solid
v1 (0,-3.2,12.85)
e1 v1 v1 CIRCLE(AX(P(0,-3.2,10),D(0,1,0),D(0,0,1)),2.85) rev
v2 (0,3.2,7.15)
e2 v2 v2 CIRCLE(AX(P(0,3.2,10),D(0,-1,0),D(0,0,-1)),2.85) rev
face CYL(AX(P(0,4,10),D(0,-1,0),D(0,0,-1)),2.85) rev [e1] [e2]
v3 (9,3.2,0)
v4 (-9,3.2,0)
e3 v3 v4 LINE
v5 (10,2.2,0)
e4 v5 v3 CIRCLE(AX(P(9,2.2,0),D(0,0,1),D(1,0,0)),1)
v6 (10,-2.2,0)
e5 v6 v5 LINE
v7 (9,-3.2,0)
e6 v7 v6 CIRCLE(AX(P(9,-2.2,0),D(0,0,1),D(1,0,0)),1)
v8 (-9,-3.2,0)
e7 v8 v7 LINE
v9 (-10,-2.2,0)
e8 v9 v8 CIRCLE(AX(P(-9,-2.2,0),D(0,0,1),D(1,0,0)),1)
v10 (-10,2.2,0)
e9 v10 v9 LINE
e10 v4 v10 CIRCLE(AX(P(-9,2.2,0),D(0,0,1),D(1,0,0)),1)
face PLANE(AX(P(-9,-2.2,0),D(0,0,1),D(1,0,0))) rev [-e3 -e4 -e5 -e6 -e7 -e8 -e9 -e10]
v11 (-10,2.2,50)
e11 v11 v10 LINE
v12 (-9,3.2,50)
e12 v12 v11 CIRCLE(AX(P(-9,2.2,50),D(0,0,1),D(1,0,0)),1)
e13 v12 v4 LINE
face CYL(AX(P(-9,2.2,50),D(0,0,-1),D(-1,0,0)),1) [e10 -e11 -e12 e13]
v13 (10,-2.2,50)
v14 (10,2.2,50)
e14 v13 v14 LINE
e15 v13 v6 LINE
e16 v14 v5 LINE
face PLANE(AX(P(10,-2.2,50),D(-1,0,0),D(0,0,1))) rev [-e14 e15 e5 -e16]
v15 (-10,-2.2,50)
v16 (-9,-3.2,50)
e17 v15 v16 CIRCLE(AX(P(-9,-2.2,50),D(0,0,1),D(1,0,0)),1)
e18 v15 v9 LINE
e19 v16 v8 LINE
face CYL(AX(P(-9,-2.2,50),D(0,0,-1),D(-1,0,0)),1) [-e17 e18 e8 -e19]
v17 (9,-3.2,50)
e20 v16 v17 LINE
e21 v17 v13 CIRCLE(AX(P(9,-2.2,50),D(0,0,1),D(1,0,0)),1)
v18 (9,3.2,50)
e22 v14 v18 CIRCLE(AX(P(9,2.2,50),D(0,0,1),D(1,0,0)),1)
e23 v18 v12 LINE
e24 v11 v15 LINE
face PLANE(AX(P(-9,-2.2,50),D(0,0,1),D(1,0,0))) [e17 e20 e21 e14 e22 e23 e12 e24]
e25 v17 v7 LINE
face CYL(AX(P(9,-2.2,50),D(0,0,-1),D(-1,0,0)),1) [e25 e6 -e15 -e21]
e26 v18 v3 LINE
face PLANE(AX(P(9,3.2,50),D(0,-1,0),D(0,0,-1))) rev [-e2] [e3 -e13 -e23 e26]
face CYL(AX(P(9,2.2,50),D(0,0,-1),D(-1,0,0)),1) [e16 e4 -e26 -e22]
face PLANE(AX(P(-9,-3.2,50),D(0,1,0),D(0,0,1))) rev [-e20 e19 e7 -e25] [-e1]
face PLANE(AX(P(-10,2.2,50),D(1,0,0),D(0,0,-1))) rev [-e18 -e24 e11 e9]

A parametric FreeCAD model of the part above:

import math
import FreeCAD as App
import Part
import Sketcher

V = App.Vector

doc = App.newDocument("Part")
body = doc.addObject("PartDesign::Body", "Body")

# Sketch on XY plane
sketch1 = body.newObject("Sketcher::SketchObject", "Sketch")
sketch1.AttachmentSupport = (doc.getObject("XY_Plane"), [""])
sketch1.MapMode = "FlatFace"
sketch1.addGeometry(Part.LineSegment(V(-9, -3.2, 0), V(9, -3.2, 0)), False)
sketch1.addGeometry(Part.ArcOfCircle(Part.Circle(V(9, -2.2, 0), V(0, 0, 1), 1), math.radians(-90), math.radians(0)), False)
sketch1.addGeometry(Part.LineSegment(V(10, -2.2, 0), V(10, 2.2, 0)), False)
sketch1.addGeometry(Part.ArcOfCircle(Part.Circle(V(9, 2.2, 0), V(0, 0, 1), 1), math.radians(0), math.radians(90)), False)
sketch1.addGeometry(Part.LineSegment(V(9, 3.2, 0), V(-9, 3.2, 0)), False)
sketch1.addGeometry(Part.ArcOfCircle(Part.Circle(V(-9, 2.2, 0), V(0, 0, 1), 1), math.radians(90), math.radians(180)), False)
sketch1.addGeometry(Part.LineSegment(V(-10, 2.2, 0), V(-10, -2.2, 0)), False)
sketch1.addGeometry(Part.ArcOfCircle(Part.Circle(V(-9, -2.2, 0), V(0, 0, 1), 1), math.radians(-180), math.radians(-90)), False)
sketch1.addConstraint(Sketcher.Constraint("Tangent", 0, 2, 1, 1))
sketch1.addConstraint(Sketcher.Constraint("Tangent", 1, 2, 2, 1))
sketch1.addConstraint(Sketcher.Constraint("Tangent", 2, 2, 3, 1))
sketch1.addConstraint(Sketcher.Constraint("Tangent", 3, 2, 4, 1))
sketch1.addConstraint(Sketcher.Constraint("Tangent", 4, 2, 5, 1))
sketch1.addConstraint(Sketcher.Constraint("Tangent", 5, 2, 6, 1))
sketch1.addConstraint(Sketcher.Constraint("Tangent", 6, 2, 7, 1))
sketch1.addConstraint(Sketcher.Constraint("Tangent", 7, 2, 0, 1))
sketch1.addConstraint(Sketcher.Constraint("Horizontal", 0))
sketch1.addConstraint(Sketcher.Constraint("Vertical", 2))
sketch1.addConstraint(Sketcher.Constraint("Horizontal", 4))
sketch1.addConstraint(Sketcher.Constraint("Vertical", 6))
sketch1.addConstraint(Sketcher.Constraint("Equal", 1, 3))
sketch1.addConstraint(Sketcher.Constraint("Equal", 3, 5))
sketch1.addConstraint(Sketcher.Constraint("Equal", 5, 7))
sketch1.addConstraint(Sketcher.Constraint("Symmetric", 1, 3, 5, 3, -1, 1))
sketch1.addConstraint(Sketcher.Constraint("Radius", 1, 1.0))
sketch1.addConstraint(Sketcher.Constraint("DistanceX", 0, 1, 0, 2, 18.0))
sketch1.addConstraint(Sketcher.Constraint("DistanceY", 2, 1, 2, 2, 4.4))
pad1 = body.newObject("PartDesign::Pad", "Pad")
pad1.Profile = sketch1
pad1.Length = 50

# Sketch on XZ plane
sketch2 = body.newObject("Sketcher::SketchObject", "Sketch001")
sketch2.AttachmentSupport = (doc.getObject("XZ_Plane"), [""])
sketch2.MapMode = "FlatFace"
sketch2.AttachmentOffset = App.Placement(V(0, 0, 4), App.Rotation())
sketch2.addGeometry(Part.Circle(V(0, 10, 0), V(0, 0, 1), 2.9), False)
sketch2.addConstraint(Sketcher.Constraint("PointOnObject", 0, 3, -2))
sketch2.addConstraint(Sketcher.Constraint("Diameter", 0, 5.7))
sketch2.addConstraint(Sketcher.Constraint("DistanceY", -1, 1, 0, 3, 10.0))
pocket1 = body.newObject("PartDesign::Pocket", "Pocket")
pocket1.Profile = sketch2
pocket1.Length = 8

doc.recompute()
